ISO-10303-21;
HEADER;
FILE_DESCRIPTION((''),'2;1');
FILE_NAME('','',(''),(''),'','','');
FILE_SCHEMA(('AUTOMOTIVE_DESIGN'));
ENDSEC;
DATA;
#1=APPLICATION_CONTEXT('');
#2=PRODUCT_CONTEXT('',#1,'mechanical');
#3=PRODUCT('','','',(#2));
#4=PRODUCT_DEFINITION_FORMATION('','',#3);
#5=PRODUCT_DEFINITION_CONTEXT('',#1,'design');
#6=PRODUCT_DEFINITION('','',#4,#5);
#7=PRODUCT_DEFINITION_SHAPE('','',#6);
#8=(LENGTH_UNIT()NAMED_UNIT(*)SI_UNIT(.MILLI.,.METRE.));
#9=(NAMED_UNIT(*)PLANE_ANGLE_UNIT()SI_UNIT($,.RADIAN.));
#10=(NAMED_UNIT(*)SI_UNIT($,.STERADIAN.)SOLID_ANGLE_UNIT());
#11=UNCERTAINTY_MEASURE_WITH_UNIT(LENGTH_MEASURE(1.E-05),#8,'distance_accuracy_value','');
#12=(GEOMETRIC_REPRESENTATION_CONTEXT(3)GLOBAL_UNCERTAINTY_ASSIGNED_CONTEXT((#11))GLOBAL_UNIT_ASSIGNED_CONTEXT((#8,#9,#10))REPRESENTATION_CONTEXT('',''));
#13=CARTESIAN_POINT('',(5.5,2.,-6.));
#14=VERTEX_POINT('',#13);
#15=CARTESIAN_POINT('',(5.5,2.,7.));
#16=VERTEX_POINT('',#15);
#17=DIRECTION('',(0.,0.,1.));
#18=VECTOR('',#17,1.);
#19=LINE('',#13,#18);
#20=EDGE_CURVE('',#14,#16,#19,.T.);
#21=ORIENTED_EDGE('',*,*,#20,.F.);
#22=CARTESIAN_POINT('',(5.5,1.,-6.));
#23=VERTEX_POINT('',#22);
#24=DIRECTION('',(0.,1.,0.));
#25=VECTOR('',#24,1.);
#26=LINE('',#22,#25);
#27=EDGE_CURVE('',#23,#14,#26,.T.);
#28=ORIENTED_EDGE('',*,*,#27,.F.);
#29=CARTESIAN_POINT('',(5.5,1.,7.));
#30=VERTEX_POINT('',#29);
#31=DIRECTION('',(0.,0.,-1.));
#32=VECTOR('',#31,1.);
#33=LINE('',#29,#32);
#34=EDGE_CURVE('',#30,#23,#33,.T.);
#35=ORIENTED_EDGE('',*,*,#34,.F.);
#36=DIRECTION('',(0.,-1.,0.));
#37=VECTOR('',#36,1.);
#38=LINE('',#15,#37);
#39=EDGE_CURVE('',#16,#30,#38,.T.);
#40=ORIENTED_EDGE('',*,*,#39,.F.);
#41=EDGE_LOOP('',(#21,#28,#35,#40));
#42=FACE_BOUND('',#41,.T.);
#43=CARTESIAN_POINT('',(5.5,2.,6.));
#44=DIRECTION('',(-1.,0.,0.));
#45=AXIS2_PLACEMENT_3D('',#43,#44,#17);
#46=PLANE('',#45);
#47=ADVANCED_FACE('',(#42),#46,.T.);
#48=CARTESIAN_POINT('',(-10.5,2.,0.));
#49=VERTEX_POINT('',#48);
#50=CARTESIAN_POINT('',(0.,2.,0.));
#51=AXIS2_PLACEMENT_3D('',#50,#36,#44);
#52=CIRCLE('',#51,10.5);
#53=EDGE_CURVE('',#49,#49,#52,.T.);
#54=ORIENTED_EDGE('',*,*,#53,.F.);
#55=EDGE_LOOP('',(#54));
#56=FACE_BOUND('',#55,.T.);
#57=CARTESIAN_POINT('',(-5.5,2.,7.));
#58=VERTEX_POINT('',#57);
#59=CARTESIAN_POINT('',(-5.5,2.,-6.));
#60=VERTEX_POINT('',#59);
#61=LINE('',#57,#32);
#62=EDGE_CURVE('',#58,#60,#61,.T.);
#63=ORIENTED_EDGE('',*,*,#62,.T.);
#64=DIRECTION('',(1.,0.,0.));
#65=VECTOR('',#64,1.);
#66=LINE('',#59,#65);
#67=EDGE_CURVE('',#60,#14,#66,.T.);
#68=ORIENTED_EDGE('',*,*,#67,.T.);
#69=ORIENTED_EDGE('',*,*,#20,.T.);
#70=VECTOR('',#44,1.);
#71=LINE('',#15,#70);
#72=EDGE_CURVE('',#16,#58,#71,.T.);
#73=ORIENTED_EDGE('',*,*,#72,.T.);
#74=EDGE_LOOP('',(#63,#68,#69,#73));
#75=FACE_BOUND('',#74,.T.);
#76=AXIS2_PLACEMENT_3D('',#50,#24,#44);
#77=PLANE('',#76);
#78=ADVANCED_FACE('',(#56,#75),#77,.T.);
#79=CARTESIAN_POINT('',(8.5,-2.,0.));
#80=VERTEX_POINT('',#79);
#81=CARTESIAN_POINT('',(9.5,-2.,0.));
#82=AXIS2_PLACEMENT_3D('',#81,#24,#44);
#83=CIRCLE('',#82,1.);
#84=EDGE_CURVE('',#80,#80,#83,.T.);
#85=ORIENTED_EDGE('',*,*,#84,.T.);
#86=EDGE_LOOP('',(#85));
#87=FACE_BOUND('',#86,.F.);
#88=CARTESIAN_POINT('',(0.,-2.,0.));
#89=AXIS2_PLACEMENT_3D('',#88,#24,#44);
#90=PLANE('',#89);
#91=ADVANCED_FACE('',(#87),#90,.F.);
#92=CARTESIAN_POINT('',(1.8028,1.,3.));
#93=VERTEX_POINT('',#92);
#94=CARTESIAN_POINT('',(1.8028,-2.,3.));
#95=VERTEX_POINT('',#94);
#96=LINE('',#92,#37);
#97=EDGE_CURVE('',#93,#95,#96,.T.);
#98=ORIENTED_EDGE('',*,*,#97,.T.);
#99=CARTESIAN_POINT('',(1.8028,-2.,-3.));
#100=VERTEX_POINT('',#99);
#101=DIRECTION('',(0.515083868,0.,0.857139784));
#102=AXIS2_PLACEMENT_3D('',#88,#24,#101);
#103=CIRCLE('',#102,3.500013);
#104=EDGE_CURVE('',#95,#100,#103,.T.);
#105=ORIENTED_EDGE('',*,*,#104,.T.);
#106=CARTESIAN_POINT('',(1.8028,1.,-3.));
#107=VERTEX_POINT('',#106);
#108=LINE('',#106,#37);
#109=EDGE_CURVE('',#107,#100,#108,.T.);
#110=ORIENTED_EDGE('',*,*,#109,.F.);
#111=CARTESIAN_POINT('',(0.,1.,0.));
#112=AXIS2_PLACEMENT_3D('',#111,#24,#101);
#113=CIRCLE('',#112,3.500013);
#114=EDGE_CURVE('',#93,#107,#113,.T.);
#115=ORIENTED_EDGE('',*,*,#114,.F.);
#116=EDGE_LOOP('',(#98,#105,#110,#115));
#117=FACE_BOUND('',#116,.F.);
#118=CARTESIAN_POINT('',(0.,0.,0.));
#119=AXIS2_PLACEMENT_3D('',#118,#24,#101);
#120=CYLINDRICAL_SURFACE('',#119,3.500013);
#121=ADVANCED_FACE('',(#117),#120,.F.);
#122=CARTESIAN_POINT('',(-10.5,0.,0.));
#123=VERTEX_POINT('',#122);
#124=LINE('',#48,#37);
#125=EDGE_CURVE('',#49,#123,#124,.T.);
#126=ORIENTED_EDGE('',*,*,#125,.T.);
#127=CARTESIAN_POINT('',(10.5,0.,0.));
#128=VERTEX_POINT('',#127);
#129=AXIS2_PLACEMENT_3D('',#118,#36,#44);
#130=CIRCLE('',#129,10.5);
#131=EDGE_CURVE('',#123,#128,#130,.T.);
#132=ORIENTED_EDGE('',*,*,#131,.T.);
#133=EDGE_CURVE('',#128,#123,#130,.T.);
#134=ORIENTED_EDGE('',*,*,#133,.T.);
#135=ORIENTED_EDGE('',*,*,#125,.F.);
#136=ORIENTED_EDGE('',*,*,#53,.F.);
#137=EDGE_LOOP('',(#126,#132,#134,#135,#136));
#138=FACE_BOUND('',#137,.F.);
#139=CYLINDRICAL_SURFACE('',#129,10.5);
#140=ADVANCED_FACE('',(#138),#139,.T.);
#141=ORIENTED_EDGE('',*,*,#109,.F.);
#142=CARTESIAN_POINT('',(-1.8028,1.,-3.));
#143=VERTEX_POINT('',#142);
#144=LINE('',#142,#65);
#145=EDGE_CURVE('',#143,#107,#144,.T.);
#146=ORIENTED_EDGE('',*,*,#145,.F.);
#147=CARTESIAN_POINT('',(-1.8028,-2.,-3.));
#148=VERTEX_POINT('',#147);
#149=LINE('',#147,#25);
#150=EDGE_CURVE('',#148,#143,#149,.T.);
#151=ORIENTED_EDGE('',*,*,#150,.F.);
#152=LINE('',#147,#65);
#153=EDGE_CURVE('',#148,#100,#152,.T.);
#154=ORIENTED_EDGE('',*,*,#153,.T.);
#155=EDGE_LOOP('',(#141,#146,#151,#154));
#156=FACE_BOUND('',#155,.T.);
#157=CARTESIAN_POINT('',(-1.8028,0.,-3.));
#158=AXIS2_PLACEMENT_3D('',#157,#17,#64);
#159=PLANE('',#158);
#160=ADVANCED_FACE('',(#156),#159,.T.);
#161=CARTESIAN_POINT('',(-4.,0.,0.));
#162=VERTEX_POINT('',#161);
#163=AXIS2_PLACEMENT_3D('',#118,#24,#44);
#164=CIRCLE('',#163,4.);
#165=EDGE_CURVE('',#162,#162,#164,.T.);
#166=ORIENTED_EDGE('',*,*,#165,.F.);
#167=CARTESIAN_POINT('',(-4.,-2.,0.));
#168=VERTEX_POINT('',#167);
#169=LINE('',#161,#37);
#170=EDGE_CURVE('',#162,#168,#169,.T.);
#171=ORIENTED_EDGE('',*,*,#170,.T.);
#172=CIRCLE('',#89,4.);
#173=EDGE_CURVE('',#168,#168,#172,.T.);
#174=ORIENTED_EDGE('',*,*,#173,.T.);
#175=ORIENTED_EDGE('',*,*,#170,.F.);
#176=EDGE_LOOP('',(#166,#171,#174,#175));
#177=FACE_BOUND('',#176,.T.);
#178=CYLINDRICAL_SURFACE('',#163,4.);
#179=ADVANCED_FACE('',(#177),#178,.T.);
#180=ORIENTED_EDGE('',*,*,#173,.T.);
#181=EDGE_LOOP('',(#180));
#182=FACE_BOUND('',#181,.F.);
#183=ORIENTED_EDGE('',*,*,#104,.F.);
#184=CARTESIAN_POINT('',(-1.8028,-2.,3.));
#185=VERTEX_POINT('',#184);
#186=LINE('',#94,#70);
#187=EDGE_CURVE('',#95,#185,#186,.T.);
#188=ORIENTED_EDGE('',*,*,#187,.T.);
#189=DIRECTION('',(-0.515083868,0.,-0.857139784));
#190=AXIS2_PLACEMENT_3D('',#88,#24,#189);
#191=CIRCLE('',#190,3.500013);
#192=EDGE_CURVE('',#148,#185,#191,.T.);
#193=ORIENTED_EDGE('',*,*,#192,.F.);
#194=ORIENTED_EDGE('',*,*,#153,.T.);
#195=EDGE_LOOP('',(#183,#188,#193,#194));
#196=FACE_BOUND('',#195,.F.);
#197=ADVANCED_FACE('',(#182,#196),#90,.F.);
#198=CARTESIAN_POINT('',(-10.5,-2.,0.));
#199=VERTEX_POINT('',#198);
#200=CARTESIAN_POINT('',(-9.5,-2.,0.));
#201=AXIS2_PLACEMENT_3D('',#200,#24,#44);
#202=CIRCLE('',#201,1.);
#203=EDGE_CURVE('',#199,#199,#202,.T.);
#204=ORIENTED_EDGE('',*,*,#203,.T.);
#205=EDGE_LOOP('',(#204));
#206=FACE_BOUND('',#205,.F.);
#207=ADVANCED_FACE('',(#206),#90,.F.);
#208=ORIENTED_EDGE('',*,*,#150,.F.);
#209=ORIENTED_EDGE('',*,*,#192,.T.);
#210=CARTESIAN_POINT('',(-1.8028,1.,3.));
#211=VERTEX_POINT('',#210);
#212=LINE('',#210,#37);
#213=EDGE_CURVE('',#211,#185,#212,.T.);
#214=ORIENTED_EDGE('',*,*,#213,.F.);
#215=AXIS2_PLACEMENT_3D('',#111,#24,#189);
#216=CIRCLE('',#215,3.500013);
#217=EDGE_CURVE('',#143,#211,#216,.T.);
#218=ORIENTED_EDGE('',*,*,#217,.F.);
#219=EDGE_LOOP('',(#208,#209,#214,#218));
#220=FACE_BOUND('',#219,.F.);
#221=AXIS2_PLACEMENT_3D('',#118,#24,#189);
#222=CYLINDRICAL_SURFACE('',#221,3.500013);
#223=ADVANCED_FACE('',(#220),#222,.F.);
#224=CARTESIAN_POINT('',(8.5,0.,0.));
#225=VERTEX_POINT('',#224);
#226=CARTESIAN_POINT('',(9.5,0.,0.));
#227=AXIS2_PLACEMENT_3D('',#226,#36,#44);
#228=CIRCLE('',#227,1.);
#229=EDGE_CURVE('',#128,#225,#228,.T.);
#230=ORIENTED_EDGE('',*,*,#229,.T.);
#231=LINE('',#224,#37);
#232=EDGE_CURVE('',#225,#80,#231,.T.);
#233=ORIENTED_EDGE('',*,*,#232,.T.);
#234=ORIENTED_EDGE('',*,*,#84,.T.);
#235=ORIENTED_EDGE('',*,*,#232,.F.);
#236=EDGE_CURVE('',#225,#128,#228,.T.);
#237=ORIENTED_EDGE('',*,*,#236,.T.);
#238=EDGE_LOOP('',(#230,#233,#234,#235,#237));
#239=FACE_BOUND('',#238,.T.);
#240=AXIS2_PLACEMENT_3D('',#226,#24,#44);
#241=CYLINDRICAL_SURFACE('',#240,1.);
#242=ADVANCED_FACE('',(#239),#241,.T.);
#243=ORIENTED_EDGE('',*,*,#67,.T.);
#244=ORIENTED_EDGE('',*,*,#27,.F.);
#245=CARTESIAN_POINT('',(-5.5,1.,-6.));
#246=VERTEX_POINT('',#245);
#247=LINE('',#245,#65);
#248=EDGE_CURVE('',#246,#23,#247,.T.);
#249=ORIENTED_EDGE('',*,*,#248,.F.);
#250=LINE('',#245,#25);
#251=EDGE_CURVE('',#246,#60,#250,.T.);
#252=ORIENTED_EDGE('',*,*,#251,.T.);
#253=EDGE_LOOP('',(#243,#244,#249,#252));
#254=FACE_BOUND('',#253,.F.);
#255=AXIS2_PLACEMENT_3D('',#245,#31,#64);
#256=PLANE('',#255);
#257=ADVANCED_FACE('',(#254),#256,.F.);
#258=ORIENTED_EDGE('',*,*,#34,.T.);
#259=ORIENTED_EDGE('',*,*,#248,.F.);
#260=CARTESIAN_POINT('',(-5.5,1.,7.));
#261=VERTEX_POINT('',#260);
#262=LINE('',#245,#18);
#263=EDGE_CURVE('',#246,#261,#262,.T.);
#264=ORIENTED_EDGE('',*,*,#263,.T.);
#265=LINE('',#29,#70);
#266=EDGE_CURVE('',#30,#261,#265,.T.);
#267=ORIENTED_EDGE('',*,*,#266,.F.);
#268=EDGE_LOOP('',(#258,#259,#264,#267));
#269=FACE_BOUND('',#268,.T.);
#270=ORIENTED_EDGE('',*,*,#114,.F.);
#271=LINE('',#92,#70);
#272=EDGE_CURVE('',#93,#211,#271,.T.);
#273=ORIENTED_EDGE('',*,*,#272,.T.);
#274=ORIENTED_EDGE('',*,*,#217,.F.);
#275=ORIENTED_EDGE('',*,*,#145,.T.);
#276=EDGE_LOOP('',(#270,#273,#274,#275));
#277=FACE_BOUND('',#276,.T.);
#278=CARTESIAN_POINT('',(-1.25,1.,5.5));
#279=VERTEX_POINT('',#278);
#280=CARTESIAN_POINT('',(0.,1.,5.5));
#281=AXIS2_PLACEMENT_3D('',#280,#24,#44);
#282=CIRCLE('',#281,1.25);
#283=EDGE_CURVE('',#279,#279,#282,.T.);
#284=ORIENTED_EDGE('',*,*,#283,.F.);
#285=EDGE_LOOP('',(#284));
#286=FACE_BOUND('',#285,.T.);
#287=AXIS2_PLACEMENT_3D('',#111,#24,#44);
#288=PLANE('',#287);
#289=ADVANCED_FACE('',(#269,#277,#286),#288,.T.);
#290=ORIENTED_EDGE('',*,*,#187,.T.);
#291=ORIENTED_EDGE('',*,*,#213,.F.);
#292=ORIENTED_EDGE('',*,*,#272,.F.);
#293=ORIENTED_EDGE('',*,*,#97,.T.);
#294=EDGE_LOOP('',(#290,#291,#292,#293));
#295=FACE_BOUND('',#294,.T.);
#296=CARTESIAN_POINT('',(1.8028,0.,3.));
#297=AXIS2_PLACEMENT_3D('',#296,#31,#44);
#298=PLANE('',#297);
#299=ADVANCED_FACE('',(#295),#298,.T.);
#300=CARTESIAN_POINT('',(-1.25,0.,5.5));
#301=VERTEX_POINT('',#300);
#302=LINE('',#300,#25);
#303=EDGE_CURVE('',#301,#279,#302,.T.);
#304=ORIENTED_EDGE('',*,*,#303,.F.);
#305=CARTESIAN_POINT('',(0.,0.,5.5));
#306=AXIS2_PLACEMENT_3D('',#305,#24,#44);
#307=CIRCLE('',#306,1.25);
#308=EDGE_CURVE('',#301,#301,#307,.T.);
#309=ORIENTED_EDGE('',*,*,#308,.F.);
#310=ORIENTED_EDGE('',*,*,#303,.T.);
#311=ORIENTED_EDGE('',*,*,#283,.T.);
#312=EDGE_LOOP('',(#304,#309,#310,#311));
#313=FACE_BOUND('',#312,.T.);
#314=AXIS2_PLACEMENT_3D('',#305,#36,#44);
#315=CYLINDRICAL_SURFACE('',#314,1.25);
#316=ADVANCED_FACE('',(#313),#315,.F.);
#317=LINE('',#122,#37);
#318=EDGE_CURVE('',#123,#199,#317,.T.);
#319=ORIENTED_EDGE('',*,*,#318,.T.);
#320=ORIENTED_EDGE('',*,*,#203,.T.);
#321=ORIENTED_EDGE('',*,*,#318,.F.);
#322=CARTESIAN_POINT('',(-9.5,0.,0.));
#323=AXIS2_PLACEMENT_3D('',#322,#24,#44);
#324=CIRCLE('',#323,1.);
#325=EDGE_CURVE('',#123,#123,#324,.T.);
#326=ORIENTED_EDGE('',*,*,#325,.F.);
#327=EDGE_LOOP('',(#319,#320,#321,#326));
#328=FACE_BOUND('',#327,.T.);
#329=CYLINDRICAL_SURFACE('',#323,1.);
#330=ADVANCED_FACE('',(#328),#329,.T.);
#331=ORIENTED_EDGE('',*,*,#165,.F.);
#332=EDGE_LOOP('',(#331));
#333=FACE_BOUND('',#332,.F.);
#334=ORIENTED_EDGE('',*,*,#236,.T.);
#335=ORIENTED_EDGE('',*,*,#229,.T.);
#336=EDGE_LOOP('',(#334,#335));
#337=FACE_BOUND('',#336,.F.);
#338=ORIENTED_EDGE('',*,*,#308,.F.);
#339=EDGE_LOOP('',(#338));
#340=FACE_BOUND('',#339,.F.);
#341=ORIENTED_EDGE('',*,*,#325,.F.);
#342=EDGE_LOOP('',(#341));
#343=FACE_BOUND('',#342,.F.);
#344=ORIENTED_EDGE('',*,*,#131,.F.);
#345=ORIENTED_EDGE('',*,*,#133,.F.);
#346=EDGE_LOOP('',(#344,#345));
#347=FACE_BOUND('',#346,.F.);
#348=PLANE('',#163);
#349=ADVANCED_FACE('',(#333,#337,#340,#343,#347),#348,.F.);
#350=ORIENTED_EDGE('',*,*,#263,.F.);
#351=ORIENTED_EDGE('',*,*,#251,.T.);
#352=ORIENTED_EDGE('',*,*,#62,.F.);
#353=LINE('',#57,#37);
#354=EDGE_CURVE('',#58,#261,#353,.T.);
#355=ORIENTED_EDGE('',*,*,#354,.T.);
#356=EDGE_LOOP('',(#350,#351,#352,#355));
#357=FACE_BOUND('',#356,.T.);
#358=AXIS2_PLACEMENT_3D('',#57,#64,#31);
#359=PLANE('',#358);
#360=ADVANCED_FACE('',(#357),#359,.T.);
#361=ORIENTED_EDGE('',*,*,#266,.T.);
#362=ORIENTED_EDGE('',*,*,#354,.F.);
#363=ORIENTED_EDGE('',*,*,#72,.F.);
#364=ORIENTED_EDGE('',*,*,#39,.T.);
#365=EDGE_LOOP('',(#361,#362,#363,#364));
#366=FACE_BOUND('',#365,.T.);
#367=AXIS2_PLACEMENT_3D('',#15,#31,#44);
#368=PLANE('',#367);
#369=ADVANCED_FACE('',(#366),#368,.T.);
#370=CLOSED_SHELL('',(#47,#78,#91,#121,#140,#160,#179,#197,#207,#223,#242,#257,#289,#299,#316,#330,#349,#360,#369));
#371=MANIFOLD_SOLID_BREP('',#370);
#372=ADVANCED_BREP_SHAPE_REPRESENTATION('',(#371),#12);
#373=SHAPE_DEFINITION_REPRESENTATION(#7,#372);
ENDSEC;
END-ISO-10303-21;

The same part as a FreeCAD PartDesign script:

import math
import FreeCAD as App
import Part
import Sketcher
Q = App.Units.Quantity

doc = App.newDocument("Part")
body = doc.addObject("PartDesign::Body", "Body")

sketch1 = body.newObject("Sketcher::SketchObject", "Sketch")
sketch1.AttachmentSupport = (doc.getObject("XZ_Plane"), [""])
sketch1.MapMode = "FlatFace"
sketch1.addGeometry([
    Part.Circle(App.Vector(0, 0, 0), App.Vector(0, 0, 1), 10.5),
    Part.Circle(App.Vector(0, 5.5, 0), App.Vector(0, 0, 1), 1.2),
    Part.LineSegment(App.Vector(-1.8, -3, 0), App.Vector(1.8, -3, 0)),
    Part.ArcOfCircle(Part.Circle(App.Vector(0, 0, 0), App.Vector(0, 0, 1), 3.5), math.radians(-59), math.radians(59)),
    Part.LineSegment(App.Vector(1.8, 3, 0), App.Vector(-1.8, 3, 0)),
    Part.ArcOfCircle(Part.Circle(App.Vector(0, 0, 0), App.Vector(0, 0, 1), 3.5), math.radians(121), math.radians(239)),
], False)
sketch1.addConstraint([
    Sketcher.Constraint("Coincident", 2, 2, 3, 1),
    Sketcher.Constraint("Coincident", 3, 2, 4, 1),
    Sketcher.Constraint("Coincident", 4, 2, 5, 1),
    Sketcher.Constraint("Coincident", 5, 2, 2, 1),
    Sketcher.Constraint("Horizontal", 2),
    Sketcher.Constraint("Horizontal", 4),
    Sketcher.Constraint("Coincident", 0, 3, -1, 1),
    Sketcher.Constraint("Coincident", 3, 3, -1, 1),
    Sketcher.Constraint("Coincident", 5, 3, -1, 1),
    Sketcher.Constraint("Equal", 3, 5),
    Sketcher.Constraint("PointOnObject", 1, 3, -2),
    Sketcher.Constraint("Vertical", 2, 2, 3, 2),
    Sketcher.Constraint("Diameter", 0, Q("21 mm")),
    Sketcher.Constraint("Diameter", 1, Q("2.5 mm")),
    Sketcher.Constraint("DistanceY", 2, 2, 3, 2, Q("6 mm")),
    Sketcher.Constraint("Radius", 3, Q("3.5 mm")),
    Sketcher.Constraint("DistanceY", 3, 2, 1, 3, Q("2.5 mm")),
])
pad1 = body.newObject("PartDesign::Pad", "Pad")
pad1.Profile = sketch1
pad1.Length = 1
pad1.Reversed = True

sketch2 = body.newObject("Sketcher::SketchObject", "Sketch001")
sketch2.AttachmentSupport = (doc.getObject("XZ_Plane"), [""])
sketch2.MapMode = "FlatFace"
sketch2.AttachmentOffset = App.Placement(App.Vector(0, 0, -1), App.Rotation())
sketch2.addGeometry([
    Part.Circle(App.Vector(0, 0, 0), App.Vector(0, 0, 1), 10.5),
    Part.LineSegment(App.Vector(-5.5, 6, 0), App.Vector(-5.5, -6, 0)),
    Part.LineSegment(App.Vector(-5.5, -6, 0), App.Vector(5.5, -6, 0)),
    Part.LineSegment(App.Vector(5.5, -6, 0), App.Vector(5.5, 6, 0)),
    Part.LineSegment(App.Vector(5.5, 6, 0), App.Vector(1.1, 6, 0)),
    Part.ArcOfCircle(Part.Circle(App.Vector(0, 5.5, 0), App.Vector(0, 0, 1), 1.2), math.radians(24), math.radians(156)),
    Part.LineSegment(App.Vector(-1.1, 6, 0), App.Vector(-5.5, 6, 0)),
], False)
sketch2.addConstraint([
    Sketcher.Constraint("Coincident", 1, 2, 2, 1),
    Sketcher.Constraint("Coincident", 2, 2, 3, 1),
    Sketcher.Constraint("Coincident", 3, 2, 4, 1),
    Sketcher.Constraint("Coincident", 4, 2, 5, 1),
    Sketcher.Constraint("Coincident", 5, 2, 6, 1),
    Sketcher.Constraint("Coincident", 6, 2, 1, 1),
    Sketcher.Constraint("Vertical", 1),
    Sketcher.Constraint("Horizontal", 2),
    Sketcher.Constraint("Vertical", 3),
    Sketcher.Constraint("Horizontal", 4),
    Sketcher.Constraint("Horizontal", 6),
    Sketcher.Constraint("Coincident", 0, 3, -1, 1),
    Sketcher.Constraint("Symmetric", 1, 2, 3, 2, -1, 1),
    Sketcher.Constraint("Symmetric", 4, 2, 5, 2, -2),
    Sketcher.Constraint("Diameter", 0, Q("21 mm")),
    Sketcher.Constraint("DistanceX", 2, 1, 2, 2, Q("11 mm")),
    Sketcher.Constraint("DistanceY", 1, 2, 1, 1, Q("12 mm")),
    Sketcher.Constraint("Radius", 5, Q("1.25 mm")),
    Sketcher.Constraint("DistanceY", -1, 1, 5, 3, Q("5.5 mm")),
])
pad2 = body.newObject("PartDesign::Pad", "Pad001")
pad2.Profile = sketch2
pad2.Length = 1
pad2.Reversed = True

sketch3 = body.newObject("Sketcher::SketchObject", "Sketch002")
sketch3.AttachmentSupport = (doc.getObject("XZ_Plane"), [""])
sketch3.MapMode = "FlatFace"
sketch3.addGeometry([
    Part.Circle(App.Vector(0, 0, 0), App.Vector(0, 0, 1), 4),
    Part.ArcOfCircle(Part.Circle(App.Vector(0, 0, 0), App.Vector(0, 0, 1), 3.5), math.radians(121), math.radians(239)),
    Part.LineSegment(App.Vector(-1.8, -3, 0), App.Vector(1.8, -3, 0)),
    Part.ArcOfCircle(Part.Circle(App.Vector(0, 0, 0), App.Vector(0, 0, 1), 3.5), math.radians(-59), math.radians(59)),
    Part.LineSegment(App.Vector(1.8, 3, 0), App.Vector(-1.8, 3, 0)),
], False)
sketch3.addConstraint([
    Sketcher.Constraint("Coincident", 1, 2, 2, 1),
    Sketcher.Constraint("Coincident", 2, 2, 3, 1),
    Sketcher.Constraint("Coincident", 3, 2, 4, 1),
    Sketcher.Constraint("Coincident", 4, 2, 1, 1),
    Sketcher.Constraint("Horizontal", 2),
    Sketcher.Constraint("Horizontal", 4),
    Sketcher.Constraint("Coincident", 0, 3, -1, 1),
    Sketcher.Constraint("Coincident", 1, 3, -1, 1),
    Sketcher.Constraint("Coincident", 3, 3, -1, 1),
    Sketcher.Constraint("Equal", 1, 3),
    Sketcher.Constraint("Vertical", 2, 2, 3, 2),
    Sketcher.Constraint("Diameter", 0, Q("8 mm")),
    Sketcher.Constraint("DistanceY", 2, 2, 3, 2, Q("6 mm")),
    Sketcher.Constraint("Radius", 1, Q("3.5 mm")),
])
pad3 = body.newObject("PartDesign::Pad", "Pad002")
pad3.Profile = sketch3
pad3.Length = 2

sketch4 = body.newObject("Sketcher::SketchObject", "Sketch003")
sketch4.AttachmentSupport = (doc.getObject("XZ_Plane"), [""])
sketch4.MapMode = "FlatFace"
sketch4.addGeometry([
    Part.Circle(App.Vector(9.5, 0, 0), App.Vector(0, 0, 1), 1),
    Part.Circle(App.Vector(-9.5, 0, 0), App.Vector(0, 0, 1), 1),
], False)
sketch4.addConstraint([
    Sketcher.Constraint("Equal", 0, 1),
    Sketcher.Constraint("Symmetric", 0, 3, 1, 3, -1, 1),
    Sketcher.Constraint("PointOnObject", 0, 3, -1),
    Sketcher.Constraint("Diameter", 0, Q("2 mm")),
    Sketcher.Constraint("DistanceX", 1, 3, 0, 3, Q("19 mm")),
])
pad4 = body.newObject("PartDesign::Pad", "Pad003")
pad4.Profile = sketch4
pad4.Length = 2

sketch5 = body.newObject("Sketcher::SketchObject", "Sketch004")
sketch5.AttachmentSupport = (doc.getObject("XZ_Plane"), [""])
sketch5.MapMode = "FlatFace"
sketch5.AttachmentOffset = App.Placement(App.Vector(0, 0, -2), App.Rotation())
sketch5.addGeometry([
    Part.ArcOfCircle(Part.Circle(App.Vector(0, 5.5, 0), App.Vector(0, 0, 1), 1.2), math.radians(24), math.radians(156)),
    Part.LineSegment(App.Vector(-1.1, 6, 0), App.Vector(-5.5, 6, 0)),
    Part.LineSegment(App.Vector(-5.5, 6, 0), App.Vector(-5.5, 7, 0)),
    Part.LineSegment(App.Vector(-5.5, 7, 0), App.Vector(5.5, 7, 0)),
    Part.LineSegment(App.Vector(5.5, 7, 0), App.Vector(5.5, 6, 0)),
    Part.LineSegment(App.Vector(5.5, 6, 0), App.Vector(1.1, 6, 0)),
], False)
sketch5.addConstraint([
    Sketcher.Constraint("Coincident", 0, 2, 1, 1),
    Sketcher.Constraint("Coincident", 1, 2, 2, 1),
    Sketcher.Constraint("Coincident", 2, 2, 3, 1),
    Sketcher.Constraint("Coincident", 3, 2, 4, 1),
    Sketcher.Constraint("Coincident", 4, 2, 5, 1),
    Sketcher.Constraint("Coincident", 5, 2, 0, 1),
    Sketcher.Constraint("Horizontal", 1),
    Sketcher.Constraint("Vertical", 2),
    Sketcher.Constraint("Horizontal", 3),
    Sketcher.Constraint("Vertical", 4),
    Sketcher.Constraint("Horizontal", 5),
    Sketcher.Constraint("Symmetric", 1, 2, 4, 2, -2),
    Sketcher.Constraint("PointOnObject", 0, 3, -2),
    Sketcher.Constraint("DistanceX", 3, 1, 3, 2, Q("11 mm")),
    Sketcher.Constraint("DistanceY", 2, 1, 2, 2, Q("1 mm")),
    Sketcher.Constraint("Radius", 0, Q("1.25 mm")),
    Sketcher.Constraint("DistanceY", -1, 1, 0, 2, Q("6 mm")),
    Sketcher.Constraint("DistanceY", -1, 1, 0, 3, Q("5.5 mm")),
])
pocket1 = body.newObject("PartDesign::Pocket", "Pocket")
pocket1.Profile = sketch5
pocket1.Length = 1
pocket1.Reversed = True

doc.recompute()
